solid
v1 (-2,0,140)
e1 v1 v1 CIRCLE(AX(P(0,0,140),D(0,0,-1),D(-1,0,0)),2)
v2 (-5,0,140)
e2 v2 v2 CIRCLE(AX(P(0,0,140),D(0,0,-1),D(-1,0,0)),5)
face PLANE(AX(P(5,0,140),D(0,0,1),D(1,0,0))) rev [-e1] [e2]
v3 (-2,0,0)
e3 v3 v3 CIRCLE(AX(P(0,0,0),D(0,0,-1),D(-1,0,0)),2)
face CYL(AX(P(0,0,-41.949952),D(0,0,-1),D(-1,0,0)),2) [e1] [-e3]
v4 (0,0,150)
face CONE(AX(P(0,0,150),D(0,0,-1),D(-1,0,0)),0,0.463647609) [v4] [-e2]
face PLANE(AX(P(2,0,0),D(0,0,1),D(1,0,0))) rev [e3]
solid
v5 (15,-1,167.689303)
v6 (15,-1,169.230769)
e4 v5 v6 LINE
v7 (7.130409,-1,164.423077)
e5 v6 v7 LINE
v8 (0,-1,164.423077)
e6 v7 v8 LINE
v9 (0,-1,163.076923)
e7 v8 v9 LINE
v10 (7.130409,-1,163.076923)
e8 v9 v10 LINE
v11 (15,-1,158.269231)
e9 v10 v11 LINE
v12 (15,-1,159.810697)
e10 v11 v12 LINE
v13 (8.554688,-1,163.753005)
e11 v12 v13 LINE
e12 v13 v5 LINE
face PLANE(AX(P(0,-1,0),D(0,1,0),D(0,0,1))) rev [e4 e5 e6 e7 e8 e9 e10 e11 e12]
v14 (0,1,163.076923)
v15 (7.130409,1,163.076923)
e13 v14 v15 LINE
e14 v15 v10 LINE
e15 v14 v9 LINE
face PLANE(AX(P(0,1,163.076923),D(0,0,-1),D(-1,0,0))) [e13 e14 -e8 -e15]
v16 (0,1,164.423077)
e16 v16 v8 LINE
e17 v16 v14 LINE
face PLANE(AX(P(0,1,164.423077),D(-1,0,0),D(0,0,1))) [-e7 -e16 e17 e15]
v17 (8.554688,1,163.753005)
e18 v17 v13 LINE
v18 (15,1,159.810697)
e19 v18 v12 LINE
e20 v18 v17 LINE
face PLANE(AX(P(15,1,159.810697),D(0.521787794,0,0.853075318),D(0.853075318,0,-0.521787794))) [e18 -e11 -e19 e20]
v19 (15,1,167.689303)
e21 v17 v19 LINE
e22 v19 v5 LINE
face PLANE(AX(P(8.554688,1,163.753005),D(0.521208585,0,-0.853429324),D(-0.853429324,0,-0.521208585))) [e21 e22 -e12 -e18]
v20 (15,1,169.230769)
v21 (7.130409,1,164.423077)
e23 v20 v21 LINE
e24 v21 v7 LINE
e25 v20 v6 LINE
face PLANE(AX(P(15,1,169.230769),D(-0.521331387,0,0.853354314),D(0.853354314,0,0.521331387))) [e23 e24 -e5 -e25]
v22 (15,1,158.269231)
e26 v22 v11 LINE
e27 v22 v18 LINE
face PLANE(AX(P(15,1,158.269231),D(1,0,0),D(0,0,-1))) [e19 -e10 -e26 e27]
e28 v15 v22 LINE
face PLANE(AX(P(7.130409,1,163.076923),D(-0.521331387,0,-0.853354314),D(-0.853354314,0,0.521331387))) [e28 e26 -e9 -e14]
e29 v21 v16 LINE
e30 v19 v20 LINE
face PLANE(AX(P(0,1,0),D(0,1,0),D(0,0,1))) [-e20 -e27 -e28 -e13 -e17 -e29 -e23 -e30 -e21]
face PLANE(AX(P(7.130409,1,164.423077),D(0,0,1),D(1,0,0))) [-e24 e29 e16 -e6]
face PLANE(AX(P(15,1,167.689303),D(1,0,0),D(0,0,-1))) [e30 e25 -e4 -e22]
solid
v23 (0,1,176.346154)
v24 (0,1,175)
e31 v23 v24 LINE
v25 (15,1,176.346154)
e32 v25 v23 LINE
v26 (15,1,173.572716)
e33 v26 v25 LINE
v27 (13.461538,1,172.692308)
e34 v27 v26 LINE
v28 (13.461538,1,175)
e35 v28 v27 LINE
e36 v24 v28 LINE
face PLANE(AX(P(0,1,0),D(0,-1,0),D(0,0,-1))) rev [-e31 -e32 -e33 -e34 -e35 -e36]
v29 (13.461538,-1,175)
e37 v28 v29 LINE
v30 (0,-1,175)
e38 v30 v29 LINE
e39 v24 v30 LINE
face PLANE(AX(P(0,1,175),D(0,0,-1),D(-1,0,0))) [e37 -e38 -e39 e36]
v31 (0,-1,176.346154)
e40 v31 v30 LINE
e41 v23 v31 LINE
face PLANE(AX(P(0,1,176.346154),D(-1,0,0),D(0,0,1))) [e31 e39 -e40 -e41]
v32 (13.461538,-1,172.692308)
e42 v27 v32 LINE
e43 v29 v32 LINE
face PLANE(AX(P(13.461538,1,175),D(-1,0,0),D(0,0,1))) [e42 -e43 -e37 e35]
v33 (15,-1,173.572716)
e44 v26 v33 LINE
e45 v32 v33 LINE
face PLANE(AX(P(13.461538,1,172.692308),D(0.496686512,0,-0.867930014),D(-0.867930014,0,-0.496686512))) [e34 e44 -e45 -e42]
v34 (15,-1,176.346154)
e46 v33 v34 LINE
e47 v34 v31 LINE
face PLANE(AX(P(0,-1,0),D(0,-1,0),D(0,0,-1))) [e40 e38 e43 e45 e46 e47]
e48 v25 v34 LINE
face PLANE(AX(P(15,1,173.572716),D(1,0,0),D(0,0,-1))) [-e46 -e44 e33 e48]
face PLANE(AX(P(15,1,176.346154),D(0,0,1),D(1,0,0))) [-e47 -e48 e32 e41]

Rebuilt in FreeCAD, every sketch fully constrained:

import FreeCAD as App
import Part
import Sketcher
from FreeCAD import Vector


def add_polygon(sketch, points):
    """Adds a closed chain of lines whose ends are joined by coincident constraints."""
    first, n = sketch.GeometryCount, len(points)
    for a, b in zip(points, points[1:] + points[:1]):
        sketch.addGeometry(Part.LineSegment(App.Vector(*a, 0), App.Vector(*b, 0)), False)
    for i in range(n):
        sketch.addConstraint(Sketcher.Constraint("Coincident", first + i, 2, first + (i + 1) % n, 1))

doc = App.newDocument("Part")
body = doc.addObject("PartDesign::Body", "Body")

# Sketch on XZ plane
sketch1 = doc.addObject("Sketcher::SketchObject", "Sketch")
body.addObject(sketch1)
sketch1.AttachmentSupport = (doc.XZ_Plane, [""])
sketch1.MapMode = "FlatFace"
add_polygon(sketch1, [(0, 150), (5, 140), (2, 140), (2, 0), (0, 0)])  # lines 0-4
sketch1.addConstraint([
    Sketcher.Constraint("Horizontal", 1),
    Sketcher.Constraint("Vertical", 2),
    Sketcher.Constraint("Horizontal", 3),
    Sketcher.Constraint("Vertical", 4),
    Sketcher.Constraint("Coincident", 3, 2, -1, 1),
    Sketcher.Constraint("DistanceX", 1, 2, 1, 1, 3.0),
    Sketcher.Constraint("DistanceX", 3, 2, 3, 1, 2.0),
    Sketcher.Constraint("DistanceY", 2, 2, 2, 1, 140.0),
    Sketcher.Constraint("DistanceY", 4, 1, 4, 2, 150.0),
])
revolution = doc.addObject("PartDesign::Revolution", "Revolution")
body.addObject(revolution)
revolution.Profile = sketch1
revolution.ReferenceAxis = (sketch1, ["V_Axis"])
revolution.Angle = 360
body2 = doc.addObject("PartDesign::Body", "Body001")

# Sketch on XZ plane
sketch2 = doc.addObject("Sketcher::SketchObject", "Sketch001")
body2.addObject(sketch2)
sketch2.AttachmentSupport = (doc.getObject("XZ_Plane001"), [""])
sketch2.MapMode = "FlatFace"
add_polygon(sketch2, [(15, 159.8), (15, 158.3), (7.1, 163.1), (0, 163.1), (0, 164.4), (7.1, 164.4), (15, 169.2), (15, 167.7), (8.6, 163.8)])  # lines 0-8
sketch2.addConstraint([
    Sketcher.Constraint("Vertical", 0),
    Sketcher.Constraint("Horizontal", 2),
    Sketcher.Constraint("Vertical", 3),
    Sketcher.Constraint("Horizontal", 4),
    Sketcher.Constraint("Vertical", 6),
    Sketcher.Constraint("PointOnObject", 2, 2, -2),
    Sketcher.Constraint("Vertical", 1, 2, 4, 2),
    Sketcher.Constraint("Vertical", 0, 2, 5, 2),
    Sketcher.Constraint("Equal", 0, 6),
    Sketcher.Constraint("Equal", 1, 5),
    Sketcher.Constraint("DistanceX", -1, 1, 0, 2, 15.0),
    Sketcher.Constraint("DistanceX", 2, 2, 2, 1, 7.130409),
    Sketcher.Constraint("DistanceY", 7, 2, 6, 2, 3.936298),
    Sketcher.Constraint("Distance", 1, 9.221951),
    Sketcher.Constraint("Distance", 7, 7.552251),
    Sketcher.Constraint("DistanceY", 0, 2, 0, 1, 1.541466),
    Sketcher.Constraint("DistanceY", 3, 1, 3, 2, 1.346154),
    Sketcher.Constraint("DistanceY", -1, 1, 0, 2, 158.269231),
])
pad1 = doc.addObject("PartDesign::Pad", "Pad")
body2.addObject(pad1)
pad1.Profile = sketch2
pad1.Type = "TwoLengths"
pad1.Length = 1
pad1.Length2 = 1
pad1.Reversed = True
body3 = doc.addObject("PartDesign::Body", "Body002")

# Sketch on XZ plane
sketch3 = doc.addObject("Sketcher::SketchObject", "Sketch002")
body3.addObject(sketch3)
sketch3.AttachmentSupport = (doc.getObject("XZ_Plane002"), [""])
sketch3.MapMode = "FlatFace"
add_polygon(sketch3, [(15, 176.3), (15, 173.6), (13.5, 172.7), (13.5, 175), (0, 175), (0, 176.3)])  # lines 0-5
sketch3.addConstraint([
    Sketcher.Constraint("Vertical", 0),
    Sketcher.Constraint("Vertical", 2),
    Sketcher.Constraint("Horizontal", 3),
    Sketcher.Constraint("Vertical", 4),
    Sketcher.Constraint("Horizontal", 5),
    Sketcher.Constraint("PointOnObject", 3, 2, -2),
    Sketcher.Constraint("DistanceX", 5, 1, 5, 2, 15.0),
    Sketcher.Constraint("DistanceY", -1, 1, 2, 2, 175.0),
    Sketcher.Constraint("DistanceX", 3, 2, 3, 1, 13.461538),
    Sketcher.Constraint("DistanceY", 0, 2, 0, 1, 2.773438),
    Sketcher.Constraint("DistanceY", 2, 1, 2, 2, 2.307692),
    Sketcher.Constraint("DistanceY", 4, 1, 4, 2, 1.346154),
])
pad2 = doc.addObject("PartDesign::Pad", "Pad001")
body3.addObject(pad2)
pad2.Profile = sketch3
pad2.Type = "TwoLengths"
pad2.Length = 1
pad2.Length2 = 1
pad2.Reversed = True

doc.recompute()
